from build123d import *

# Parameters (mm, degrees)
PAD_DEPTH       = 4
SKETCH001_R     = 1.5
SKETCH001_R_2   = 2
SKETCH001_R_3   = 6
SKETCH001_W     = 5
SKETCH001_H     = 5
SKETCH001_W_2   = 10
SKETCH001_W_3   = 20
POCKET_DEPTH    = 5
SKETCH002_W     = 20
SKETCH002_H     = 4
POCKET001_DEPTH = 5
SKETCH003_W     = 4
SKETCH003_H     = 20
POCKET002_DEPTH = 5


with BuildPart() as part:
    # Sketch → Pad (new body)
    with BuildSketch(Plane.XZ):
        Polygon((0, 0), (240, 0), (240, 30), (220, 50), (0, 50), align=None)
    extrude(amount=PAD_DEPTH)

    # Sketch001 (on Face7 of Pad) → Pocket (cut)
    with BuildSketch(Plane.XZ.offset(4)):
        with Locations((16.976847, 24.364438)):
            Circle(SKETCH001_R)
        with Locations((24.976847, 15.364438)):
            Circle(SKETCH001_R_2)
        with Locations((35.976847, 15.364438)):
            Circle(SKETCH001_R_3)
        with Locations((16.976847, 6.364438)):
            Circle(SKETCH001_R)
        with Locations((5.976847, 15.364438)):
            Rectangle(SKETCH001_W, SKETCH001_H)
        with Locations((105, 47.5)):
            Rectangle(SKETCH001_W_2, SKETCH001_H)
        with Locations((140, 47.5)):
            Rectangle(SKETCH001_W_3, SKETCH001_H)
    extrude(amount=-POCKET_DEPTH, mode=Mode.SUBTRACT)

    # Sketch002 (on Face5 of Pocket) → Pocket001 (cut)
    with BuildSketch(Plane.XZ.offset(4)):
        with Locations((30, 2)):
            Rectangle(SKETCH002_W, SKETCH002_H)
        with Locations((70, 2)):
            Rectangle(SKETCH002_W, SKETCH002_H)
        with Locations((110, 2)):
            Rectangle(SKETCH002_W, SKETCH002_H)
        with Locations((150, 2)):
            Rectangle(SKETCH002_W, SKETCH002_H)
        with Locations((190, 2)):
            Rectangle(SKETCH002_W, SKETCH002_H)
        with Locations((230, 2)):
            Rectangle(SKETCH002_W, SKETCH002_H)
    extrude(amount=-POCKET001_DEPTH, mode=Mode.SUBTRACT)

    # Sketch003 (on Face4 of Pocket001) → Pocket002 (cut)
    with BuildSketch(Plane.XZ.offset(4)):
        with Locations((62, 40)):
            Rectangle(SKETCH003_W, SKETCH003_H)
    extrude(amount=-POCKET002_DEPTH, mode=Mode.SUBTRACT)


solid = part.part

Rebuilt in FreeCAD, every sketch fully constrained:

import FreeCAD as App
import Part
import Sketcher

V = App.Vector
Q = App.Units.Quantity


def add_polygon(sketch, points):
    """Adds a closed chain of lines whose ends are joined by coincident constraints."""
    first, n = sketch.GeometryCount, len(points)
    for a, b in zip(points, points[1:] + points[:1]):
        sketch.addGeometry(Part.LineSegment(App.Vector(*a, 0), App.Vector(*b, 0)), False)
    for i in range(n):
        sketch.addConstraint(Sketcher.Constraint("Coincident", first + i, 2, first + (i + 1) % n, 1))

doc = App.newDocument("Part")
body = doc.addObject("PartDesign::Body", "Body")

sketch1 = body.newObject("Sketcher::SketchObject", "Sketch")
sketch1.AttachmentSupport = (doc.getObject("XZ_Plane"), [""])
sketch1.MapMode = "FlatFace"
add_polygon(sketch1, [(0, 0), (240, 0), (240, 30), (220, 50), (0, 50)])
sketch1.addConstraint([
    Sketcher.Constraint("Horizontal", 0),
    Sketcher.Constraint("Vertical", 1),
    Sketcher.Constraint("Horizontal", 3),
    Sketcher.Constraint("Vertical", 4),
    Sketcher.Constraint("Coincident", 4, 2, -1, 1),
    Sketcher.Constraint("DistanceX", 0, 1, 0, 2, Q("240 mm")),
    Sketcher.Constraint("DistanceX", 3, 2, 3, 1, Q("220 mm")),
    Sketcher.Constraint("DistanceY", 1, 1, 1, 2, Q("30 mm")),
    Sketcher.Constraint("DistanceY", 4, 2, 4, 1, Q("50 mm")),
])
pad1 = body.newObject("PartDesign::Pad", "Pad")
pad1.Profile = sketch1
pad1.Length = 4

sketch2 = body.newObject("Sketcher::SketchObject", "Sketch001")
sketch2.AttachmentSupport = (doc.getObject("XZ_Plane"), [""])
sketch2.MapMode = "FlatFace"
sketch2.AttachmentOffset = App.Placement(V(0, 0, 4), App.Rotation())
sketch2.addGeometry(Part.Circle(V(17, 24.4, 0), V(0, 0, 1), 1.5), False)
sketch2.addGeometry(Part.Circle(V(25, 15.4, 0), V(0, 0, 1), 2), False)
sketch2.addGeometry(Part.Circle(V(36, 15.4, 0), V(0, 0, 1), 6), False)
sketch2.addGeometry(Part.Circle(V(17, 6.4, 0), V(0, 0, 1), 1.5), False)
add_polygon(sketch2, [(3.5, 17.9), (3.5, 12.9), (8.5, 12.9), (8.5, 17.9)])
add_polygon(sketch2, [(100, 50), (100, 45), (110, 45), (110, 50)])
add_polygon(sketch2, [(130, 50), (130, 45), (150, 45), (150, 50)])
sketch2.addConstraint([
    Sketcher.Constraint("Vertical", 4),
    Sketcher.Constraint("Horizontal", 5),
    Sketcher.Constraint("Vertical", 6),
    Sketcher.Constraint("Horizontal", 7),
    Sketcher.Constraint("Vertical", 8),
    Sketcher.Constraint("Horizontal", 9),
    Sketcher.Constraint("Vertical", 10),
    Sketcher.Constraint("Horizontal", 11),
    Sketcher.Constraint("Vertical", 12),
    Sketcher.Constraint("Horizontal", 13),
    Sketcher.Constraint("Vertical", 14),
    Sketcher.Constraint("Horizontal", 15),
    Sketcher.Constraint("Equal", 0, 3),
    Sketcher.Constraint("Horizontal", 1, 3, 2, 3),
    Sketcher.Constraint("Horizontal", 9, 2, 12, 2),
    Sketcher.Constraint("Horizontal", 11, 2, 14, 2),
    Sketcher.Constraint("Vertical", 0, 3, 3, 3),
    Sketcher.Constraint("Equal", 7, 4),
    Sketcher.Constraint("Equal", 6, 8),
    Sketcher.Constraint("Diameter", 0, Q("3 mm")),
    Sketcher.Constraint("Diameter", 1, Q("4 mm")),
    Sketcher.Constraint("Diameter", 2, Q("12 mm")),
    Sketcher.Constraint("DistanceX", 5, 1, 5, 2, Q("5 mm")),
    Sketcher.Constraint("DistanceX", 9, 1, 9, 2, Q("10 mm")),
    Sketcher.Constraint("DistanceX", 13, 1, 13, 2, Q("20 mm")),
    Sketcher.Constraint("DistanceX", -1, 1, 8, 2, Q("100 mm")),
    Sketcher.Constraint("DistanceY", -1, 1, 8, 2, Q("45 mm")),
    Sketcher.Constraint("DistanceX", -1, 1, 12, 2, Q("130 mm")),
    Sketcher.Constraint("DistanceX", 0, 3, 1, 3, Q("8 mm")),
    Sketcher.Constraint("DistanceY", 1, 3, 0, 3, Q("9 mm")),
    Sketcher.Constraint("DistanceX", 1, 3, 2, 3, Q("11 mm")),
    Sketcher.Constraint("DistanceY", 3, 3, 1, 3, Q("9 mm")),
    Sketcher.Constraint("DistanceX", 4, 2, 3, 3, Q("13.5 mm")),
    Sketcher.Constraint("DistanceY", 3, 3, 4, 2, Q("6.5 mm")),
    Sketcher.Constraint("DistanceY", -1, 1, 0, 3, Q("24.364438 mm")),
    Sketcher.Constraint("DistanceX", -1, 1, 0, 3, Q("16.976847 mm")),
])
pocket1 = body.newObject("PartDesign::Pocket", "Pocket")
pocket1.Profile = sketch2
pocket1.Length = 5

sketch3 = body.newObject("Sketcher::SketchObject", "Sketch002")
sketch3.AttachmentSupport = (doc.getObject("XZ_Plane"), [""])
sketch3.MapMode = "FlatFace"
sketch3.AttachmentOffset = App.Placement(V(0, 0, 4), App.Rotation())
add_polygon(sketch3, [(20, 4), (20, 0), (40, 0), (40, 4)])
add_polygon(sketch3, [(60, 4), (60, 0), (80, 0), (80, 4)])
add_polygon(sketch3, [(100, 4), (100, 0), (120, 0), (120, 4)])
add_polygon(sketch3, [(140, 4), (140, 0), (160, 0), (160, 4)])
add_polygon(sketch3, [(180, 4), (180, 0), (200, 0), (200, 4)])
add_polygon(sketch3, [(220, 4), (220, 0), (240, 0), (240, 4)])
sketch3.addConstraint([
    Sketcher.Constraint("Vertical", 0),
    Sketcher.Constraint("Horizontal", 1),
    Sketcher.Constraint("Vertical", 2),
    Sketcher.Constraint("Horizontal", 3),
    Sketcher.Constraint("Vertical", 4),
    Sketcher.Constraint("Horizontal", 5),
    Sketcher.Constraint("Vertical", 6),
    Sketcher.Constraint("Horizontal", 7),
    Sketcher.Constraint("Vertical", 8),
    Sketcher.Constraint("Horizontal", 9),
    Sketcher.Constraint("Vertical", 10),
    Sketcher.Constraint("Horizontal", 11),
    Sketcher.Constraint("Vertical", 12),
    Sketcher.Constraint("Horizontal", 13),
    Sketcher.Constraint("Vertical", 14),
    Sketcher.Constraint("Horizontal", 15),
    Sketcher.Constraint("Vertical", 16),
    Sketcher.Constraint("Horizontal", 17),
    Sketcher.Constraint("Vertical", 18),
    Sketcher.Constraint("Horizontal", 19),
    Sketcher.Constraint("Vertical", 20),
    Sketcher.Constraint("Horizontal", 21),
    Sketcher.Constraint("Vertical", 22),
    Sketcher.Constraint("Horizontal", 23),
    Sketcher.Constraint("PointOnObject", 0, 2, -1),
    Sketcher.Constraint("PointOnObject", 4, 2, -1),
    Sketcher.Constraint("PointOnObject", 8, 2, -1),
    Sketcher.Constraint("PointOnObject", 12, 2, -1),
    Sketcher.Constraint("PointOnObject", 16, 2, -1),
    Sketcher.Constraint("PointOnObject", 20, 2, -1),
    Sketcher.Constraint("Horizontal", 3, 2, 6, 2),
    Sketcher.Constraint("Horizontal", 7, 2, 10, 2),
    Sketcher.Constraint("Horizontal", 11, 2, 14, 2),
    Sketcher.Constraint("Horizontal", 15, 2, 18, 2),
    Sketcher.Constraint("Horizontal", 19, 2, 22, 2),
    Sketcher.Constraint("Equal", 3, 5),
    Sketcher.Constraint("Equal", 7, 9),
    Sketcher.Constraint("Equal", 11, 13),
    Sketcher.Constraint("Equal", 15, 17),
    Sketcher.Constraint("Equal", 19, 21),
    Sketcher.Constraint("DistanceX", 1, 1, 1, 2, Q("20 mm")),
    Sketcher.Constraint("DistanceY", 0, 2, 0, 1, Q("4 mm")),
    Sketcher.Constraint("DistanceX", -1, 1, 0, 2, Q("20 mm")),
    Sketcher.Constraint("DistanceX", -1, 1, 4, 2, Q("60 mm")),
    Sketcher.Constraint("DistanceX", -1, 1, 8, 2, Q("100 mm")),
    Sketcher.Constraint("DistanceX", -1, 1, 12, 2, Q("140 mm")),
    Sketcher.Constraint("DistanceX", -1, 1, 16, 2, Q("180 mm")),
    Sketcher.Constraint("DistanceX", -1, 1, 20, 2, Q("220 mm")),
])
pocket2 = body.newObject("PartDesign::Pocket", "Pocket001")
pocket2.Profile = sketch3
pocket2.Length = 5

sketch4 = body.newObject("Sketcher::SketchObject", "Sketch003")
sketch4.AttachmentSupport = (doc.getObject("XZ_Plane"), [""])
sketch4.MapMode = "FlatFace"
sketch4.AttachmentOffset = App.Placement(V(0, 0, 4), App.Rotation())
add_polygon(sketch4, [(60, 50), (60, 30), (64, 30), (64, 50)])
sketch4.addConstraint([
    Sketcher.Constraint("Vertical", 0),
    Sketcher.Constraint("Horizontal", 1),
    Sketcher.Constraint("Vertical", 2),
    Sketcher.Constraint("Horizontal", 3),
    Sketcher.Constraint("DistanceX", 1, 1, 1, 2, Q("4 mm")),
    Sketcher.Constraint("DistanceY", 0, 2, 0, 1, Q("20 mm")),
    Sketcher.Constraint("DistanceX", -1, 1, 0, 2, Q("60 mm")),
    Sketcher.Constraint("DistanceY", -1, 1, 0, 2, Q("30 mm")),
])
pocket3 = body.newObject("PartDesign::Pocket", "Pocket002")
pocket3.Profile = sketch4
pocket3.Length = 5

doc.recompute()
